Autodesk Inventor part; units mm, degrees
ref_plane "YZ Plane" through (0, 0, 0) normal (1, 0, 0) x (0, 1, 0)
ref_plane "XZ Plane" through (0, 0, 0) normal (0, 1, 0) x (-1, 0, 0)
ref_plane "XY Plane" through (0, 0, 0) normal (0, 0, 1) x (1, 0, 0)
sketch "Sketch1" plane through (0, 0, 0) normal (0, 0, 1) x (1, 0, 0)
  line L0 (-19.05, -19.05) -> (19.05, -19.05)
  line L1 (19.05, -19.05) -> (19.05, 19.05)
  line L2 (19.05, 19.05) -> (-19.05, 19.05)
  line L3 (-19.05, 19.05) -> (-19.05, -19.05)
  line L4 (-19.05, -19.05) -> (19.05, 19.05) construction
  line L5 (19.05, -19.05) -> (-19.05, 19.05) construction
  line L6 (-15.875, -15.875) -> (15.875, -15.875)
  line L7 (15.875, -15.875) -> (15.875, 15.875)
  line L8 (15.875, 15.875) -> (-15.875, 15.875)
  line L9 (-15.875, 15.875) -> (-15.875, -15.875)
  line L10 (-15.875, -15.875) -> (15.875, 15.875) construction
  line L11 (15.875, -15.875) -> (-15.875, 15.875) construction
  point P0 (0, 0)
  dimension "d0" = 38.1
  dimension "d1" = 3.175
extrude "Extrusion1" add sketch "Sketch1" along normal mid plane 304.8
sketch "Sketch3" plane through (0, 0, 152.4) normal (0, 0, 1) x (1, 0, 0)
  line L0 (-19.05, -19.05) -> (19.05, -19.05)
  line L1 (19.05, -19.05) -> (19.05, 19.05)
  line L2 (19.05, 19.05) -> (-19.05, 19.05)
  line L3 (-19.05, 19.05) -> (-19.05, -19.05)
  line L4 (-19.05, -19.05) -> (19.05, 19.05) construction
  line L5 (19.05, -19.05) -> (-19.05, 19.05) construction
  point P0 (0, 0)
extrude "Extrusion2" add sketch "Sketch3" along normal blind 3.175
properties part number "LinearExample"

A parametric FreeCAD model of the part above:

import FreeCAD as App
import Part
import Sketcher
from FreeCAD import Vector
Q = App.Units.Quantity

doc = App.newDocument("Part")
body = doc.addObject("PartDesign::Body", "Body")

# Sketch on XY plane
sketch1 = doc.addObject("Sketcher::SketchObject", "Sketch")
body.addObject(sketch1)
sketch1.AttachmentSupport = (doc.XY_Plane, [""])
sketch1.MapMode = "FlatFace"
sketch1.addGeometry([
    Part.LineSegment(Vector(-19.05, 19.05, 0), Vector(-19.05, -19.05, 0)),  # 0
    Part.LineSegment(Vector(-19.05, -19.05, 0), Vector(19.05, -19.05, 0)),  # 1
    Part.LineSegment(Vector(19.05, -19.05, 0), Vector(19.05, 19.05, 0)),  # 2
    Part.LineSegment(Vector(19.05, 19.05, 0), Vector(-19.05, 19.05, 0)),  # 3
    Part.LineSegment(Vector(15.875, -15.875, 0), Vector(-15.875, -15.875, 0)),  # 4
    Part.LineSegment(Vector(-15.875, -15.875, 0), Vector(-15.875, 15.875, 0)),  # 5
    Part.LineSegment(Vector(-15.875, 15.875, 0), Vector(15.875, 15.875, 0)),  # 6
    Part.LineSegment(Vector(15.875, 15.875, 0), Vector(15.875, -15.875, 0)),  # 7
], False)
sketch1.addConstraint([
    Sketcher.Constraint("Coincident", 0, 2, 1, 1),
    Sketcher.Constraint("Coincident", 1, 2, 2, 1),
    Sketcher.Constraint("Coincident", 2, 2, 3, 1),
    Sketcher.Constraint("Coincident", 3, 2, 0, 1),
    Sketcher.Constraint("Coincident", 4, 2, 5, 1),
    Sketcher.Constraint("Coincident", 5, 2, 6, 1),
    Sketcher.Constraint("Coincident", 6, 2, 7, 1),
    Sketcher.Constraint("Coincident", 7, 2, 4, 1),
    Sketcher.Constraint("Vertical", 0),
    Sketcher.Constraint("Horizontal", 1),
    Sketcher.Constraint("Vertical", 2),
    Sketcher.Constraint("Horizontal", 3),
    Sketcher.Constraint("Horizontal", 4),
    Sketcher.Constraint("Vertical", 5),
    Sketcher.Constraint("Horizontal", 6),
    Sketcher.Constraint("Vertical", 7),
    Sketcher.Constraint("Symmetric", 0, 2, 2, 2, -1, 1),
    Sketcher.Constraint("Symmetric", 4, 2, 6, 2, -1, 1),
    Sketcher.Constraint("Equal", 3, 0),
    Sketcher.Constraint("Equal", 6, 5),
    Sketcher.Constraint("DistanceX", 1, 1, 1, 2, Q("1.5 in")),
    Sketcher.Constraint("DistanceX", 0, 2, 4, 2, Q("0.125 in")),
])
pad1 = doc.addObject("PartDesign::Pad", "Pad")
body.addObject(pad1)
pad1.Profile = sketch1
pad1.Length = Q("12 in")
pad1.Midplane = True

# Sketch on XY plane
sketch2 = doc.addObject("Sketcher::SketchObject", "Sketch001")
body.addObject(sketch2)
sketch2.AttachmentSupport = (doc.XY_Plane, [""])
sketch2.MapMode = "FlatFace"
sketch2.AttachmentOffset = App.Placement(Vector(0, 0, 6 * 25.4), App.Rotation())
sketch2.addGeometry([
    Part.LineSegment(Vector(-19.05, 19.05, 0), Vector(-19.05, -19.05, 0)),
    Part.LineSegment(Vector(-19.05, -19.05, 0), Vector(19.05, -19.05, 0)),
    Part.LineSegment(Vector(19.05, -19.05, 0), Vector(19.05, 19.05, 0)),
    Part.LineSegment(Vector(19.05, 19.05, 0), Vector(-19.05, 19.05, 0)),
], False)
sketch2.addConstraint([
    Sketcher.Constraint("Coincident", 0, 2, 1, 1),
    Sketcher.Constraint("Coincident", 1, 2, 2, 1),
    Sketcher.Constraint("Coincident", 2, 2, 3, 1),
    Sketcher.Constraint("Coincident", 3, 2, 0, 1),
    Sketcher.Constraint("Vertical", 0),
    Sketcher.Constraint("Horizontal", 1),
    Sketcher.Constraint("Vertical", 2),
    Sketcher.Constraint("Horizontal", 3),
    Sketcher.Constraint("Symmetric", 0, 2, 2, 2, -1, 1),
    Sketcher.Constraint("Equal", 3, 0),
    Sketcher.Constraint("DistanceX", 1, 1, 1, 2, Q("1.5 in")),
])
pad2 = doc.addObject("PartDesign::Pad", "Pad001")
body.addObject(pad2)
pad2.Profile = sketch2
pad2.Length = Q("0.125 in")

doc.recompute()
